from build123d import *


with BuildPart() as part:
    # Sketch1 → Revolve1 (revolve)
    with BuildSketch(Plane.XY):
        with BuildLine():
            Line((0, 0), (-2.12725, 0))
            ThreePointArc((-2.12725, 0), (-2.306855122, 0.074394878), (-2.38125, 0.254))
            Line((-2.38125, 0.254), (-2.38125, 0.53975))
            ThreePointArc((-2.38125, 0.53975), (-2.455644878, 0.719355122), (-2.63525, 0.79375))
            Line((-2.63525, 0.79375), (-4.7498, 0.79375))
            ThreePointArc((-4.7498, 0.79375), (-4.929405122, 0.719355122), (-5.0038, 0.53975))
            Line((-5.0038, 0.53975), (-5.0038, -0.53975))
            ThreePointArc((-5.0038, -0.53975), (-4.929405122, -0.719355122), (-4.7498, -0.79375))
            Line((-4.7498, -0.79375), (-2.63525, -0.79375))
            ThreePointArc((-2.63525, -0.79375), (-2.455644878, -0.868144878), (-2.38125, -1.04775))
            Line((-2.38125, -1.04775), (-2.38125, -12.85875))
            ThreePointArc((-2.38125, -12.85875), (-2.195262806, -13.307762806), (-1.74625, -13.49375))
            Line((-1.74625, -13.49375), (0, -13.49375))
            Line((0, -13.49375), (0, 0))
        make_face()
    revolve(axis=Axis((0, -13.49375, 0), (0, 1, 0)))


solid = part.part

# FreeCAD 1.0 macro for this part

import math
import FreeCAD as App
import Part
import Sketcher

V = App.Vector
Q = App.Units.Quantity

doc = App.newDocument("Part")
body = doc.addObject("PartDesign::Body", "Body")

# Sketch on XY plane
sketch1 = body.newObject("Sketcher::SketchObject", "Sketch")
sketch1.AttachmentSupport = (doc.getObject("XY_Plane"), [""])
sketch1.MapMode = "FlatFace"
sketch1.addGeometry(Part.LineSegment(V(0, 0, 0), V(-2.13, 0, 0)), False)
sketch1.addGeometry(Part.ArcOfCircle(Part.Circle(V(-2.13, 0.25, 0), V(0, 0, 1), 0.25), math.radians(-180), math.radians(-90)), False)
sketch1.addGeometry(Part.LineSegment(V(-2.38, 0.25, 0), V(-2.38, 0.54, 0)), False)
sketch1.addGeometry(Part.ArcOfCircle(Part.Circle(V(-2.64, 0.54, 0), V(0, 0, 1), 0.25), math.radians(0), math.radians(90)), False)
sketch1.addGeometry(Part.LineSegment(V(-2.64, 0.79, 0), V(-4.75, 0.79, 0)), False)
sketch1.addGeometry(Part.ArcOfCircle(Part.Circle(V(-4.75, 0.54, 0), V(0, 0, 1), 0.25), math.radians(90), math.radians(180)), False)
sketch1.addGeometry(Part.LineSegment(V(-5, 0.54, 0), V(-5, -0.54, 0)), False)
sketch1.addGeometry(Part.ArcOfCircle(Part.Circle(V(-4.75, -0.54, 0), V(0, 0, 1), 0.25), math.radians(-180), math.radians(-90)), False)
sketch1.addGeometry(Part.LineSegment(V(-4.75, -0.79, 0), V(-2.64, -0.79, 0)), False)
sketch1.addGeometry(Part.ArcOfCircle(Part.Circle(V(-2.64, -1.05, 0), V(0, 0, 1), 0.25), math.radians(0), math.radians(90)), False)
sketch1.addGeometry(Part.LineSegment(V(-2.38, -1.05, 0), V(-2.38, -12.86, 0)), False)
sketch1.addGeometry(Part.ArcOfCircle(Part.Circle(V(-1.75, -12.86, 0), V(0, 0, 1), 0.64), math.radians(180), math.radians(270)), False)
sketch1.addGeometry(Part.LineSegment(V(-1.75, -13.49, 0), V(0, -13.49, 0)), False)
sketch1.addGeometry(Part.LineSegment(V(0, -13.49, 0), V(0, 0, 0)), False)
sketch1.addConstraint(Sketcher.Constraint("Tangent", 0, 2, 1, 2))
sketch1.addConstraint(Sketcher.Constraint("Tangent", 1, 1, 2, 1))
sketch1.addConstraint(Sketcher.Constraint("Tangent", 2, 2, 3, 1))
sketch1.addConstraint(Sketcher.Constraint("Tangent", 3, 2, 4, 1))
sketch1.addConstraint(Sketcher.Constraint("Tangent", 4, 2, 5, 1))
sketch1.addConstraint(Sketcher.Constraint("Tangent", 5, 2, 6, 1))
sketch1.addConstraint(Sketcher.Constraint("Tangent", 6, 2, 7, 1))
sketch1.addConstraint(Sketcher.Constraint("Tangent", 7, 2, 8, 1))
sketch1.addConstraint(Sketcher.Constraint("Tangent", 8, 2, 9, 2))
sketch1.addConstraint(Sketcher.Constraint("Tangent", 9, 1, 10, 1))
sketch1.addConstraint(Sketcher.Constraint("Tangent", 10, 2, 11, 1))
sketch1.addConstraint(Sketcher.Constraint("Tangent", 11, 2, 12, 1))
sketch1.addConstraint(Sketcher.Constraint("Coincident", 12, 2, 13, 1))
sketch1.addConstraint(Sketcher.Constraint("Coincident", 13, 2, 0, 1))
sketch1.addConstraint(Sketcher.Constraint("Horizontal", 0))
sketch1.addConstraint(Sketcher.Constraint("Vertical", 2))
sketch1.addConstraint(Sketcher.Constraint("Horizontal", 4))
sketch1.addConstraint(Sketcher.Constraint("Vertical", 6))
sketch1.addConstraint(Sketcher.Constraint("Horizontal", 8))
sketch1.addConstraint(Sketcher.Constraint("Vertical", 10))
sketch1.addConstraint(Sketcher.Constraint("Horizontal", 12))
sketch1.addConstraint(Sketcher.Constraint("Vertical", 13))
sketch1.addConstraint(Sketcher.Constraint("Coincident", 13, 2, -1, 1))
sketch1.addConstraint(Sketcher.Constraint("Equal", 1, 3))
sketch1.addConstraint(Sketcher.Constraint("Equal", 3, 5))
sketch1.addConstraint(Sketcher.Constraint("Equal", 5, 7))
sketch1.addConstraint(Sketcher.Constraint("Equal", 7, 9))
sketch1.addConstraint(Sketcher.Constraint("Symmetric", 3, 2, 8, 2, -1))
sketch1.addConstraint(Sketcher.Constraint("Radius", 1, Q("0.01 in")))
sketch1.addConstraint(Sketcher.Constraint("Radius", 11, Q("0.025 in")))
sketch1.addConstraint(Sketcher.Constraint("DistanceY", 11, 2, 8, 2, Q("0.5 in")))
sketch1.addConstraint(Sketcher.Constraint("DistanceY", 13, 1, 13, 2, Q("0.53125 in")))
sketch1.addConstraint(Sketcher.Constraint("DistanceX", 5, 3, -1, 1, Q("0.187 in")))
sketch1.addConstraint(Sketcher.Constraint("DistanceX", 1, 1, -1, 1, Q("0.09375 in")))
revolution = body.newObject("PartDesign::Revolution", "Revolution")
revolution.Profile = sketch1
revolution.ReferenceAxis = (sketch1, ["V_Axis"])
revolution.Angle = 360

doc.recompute()
